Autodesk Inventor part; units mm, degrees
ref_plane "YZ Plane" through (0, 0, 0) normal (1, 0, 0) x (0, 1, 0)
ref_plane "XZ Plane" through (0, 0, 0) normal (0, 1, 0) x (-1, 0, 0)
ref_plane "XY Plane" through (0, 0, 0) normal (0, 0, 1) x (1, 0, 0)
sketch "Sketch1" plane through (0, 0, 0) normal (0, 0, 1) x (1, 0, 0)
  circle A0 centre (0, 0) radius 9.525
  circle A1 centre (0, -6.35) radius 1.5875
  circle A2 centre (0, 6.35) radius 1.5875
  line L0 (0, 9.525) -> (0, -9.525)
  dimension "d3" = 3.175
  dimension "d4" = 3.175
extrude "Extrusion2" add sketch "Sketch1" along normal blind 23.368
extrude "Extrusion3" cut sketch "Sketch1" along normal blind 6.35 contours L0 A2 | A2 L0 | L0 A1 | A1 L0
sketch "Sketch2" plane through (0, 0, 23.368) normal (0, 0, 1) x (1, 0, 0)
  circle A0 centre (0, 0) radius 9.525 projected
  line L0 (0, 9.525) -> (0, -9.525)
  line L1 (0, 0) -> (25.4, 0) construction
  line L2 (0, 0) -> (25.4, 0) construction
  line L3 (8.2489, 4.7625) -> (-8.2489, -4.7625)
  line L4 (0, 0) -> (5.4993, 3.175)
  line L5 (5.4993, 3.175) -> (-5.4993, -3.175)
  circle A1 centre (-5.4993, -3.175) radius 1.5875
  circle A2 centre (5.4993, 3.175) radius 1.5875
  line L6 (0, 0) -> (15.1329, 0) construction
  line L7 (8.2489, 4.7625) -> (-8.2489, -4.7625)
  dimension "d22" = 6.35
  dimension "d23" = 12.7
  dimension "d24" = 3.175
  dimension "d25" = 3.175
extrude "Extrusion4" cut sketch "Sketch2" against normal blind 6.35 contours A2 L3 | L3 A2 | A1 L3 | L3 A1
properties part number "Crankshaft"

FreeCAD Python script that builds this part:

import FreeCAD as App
import Part
import Sketcher
from FreeCAD import Vector
Q = App.Units.Quantity

doc = App.newDocument("Part")
body = doc.addObject("PartDesign::Body", "Body")

# Sketch on XY plane
sketch1 = body.newObject("Sketcher::SketchObject", "Sketch")
sketch1.AttachmentSupport = (doc.getObject("XY_Plane"), [""])
sketch1.MapMode = "FlatFace"
sketch1.addGeometry(Part.Circle(Vector(0, 0, 0), Vector(0, 0, 1), 10), False)
sketch1.addConstraint(Sketcher.Constraint("Coincident", 0, 3, -1, 1))
sketch1.addConstraint(Sketcher.Constraint("Diameter", 0, Q("0.75 in")))
pad1 = body.newObject("PartDesign::Pad", "Pad")
pad1.Profile = sketch1
pad1.Length = Q("0.92 in")

# Sketch on XY plane
sketch2 = body.newObject("Sketcher::SketchObject", "Sketch001")
sketch2.AttachmentSupport = (doc.getObject("XY_Plane"), [""])
sketch2.MapMode = "FlatFace"
sketch2.addGeometry(Part.Circle(Vector(0, 6.3, 0), Vector(0, 0, 1), 1.6), False)
sketch2.addGeometry(Part.Circle(Vector(0, -6.3, 0), Vector(0, 0, 1), 1.6), False)
sketch2.addConstraint(Sketcher.Constraint("Equal", 0, 1))
sketch2.addConstraint(Sketcher.Constraint("Symmetric", 0, 3, 1, 3, -1, 1))
sketch2.addConstraint(Sketcher.Constraint("PointOnObject", 0, 3, -2))
sketch2.addConstraint(Sketcher.Constraint("Diameter", 0, Q("0.125 in")))
sketch2.addConstraint(Sketcher.Constraint("DistanceY", 1, 3, 0, 3, Q("0.5 in")))
pocket1 = body.newObject("PartDesign::Pocket", "Pocket")
pocket1.Profile = sketch2
pocket1.Length = Q("0.25 in")
pocket1.Reversed = True

# Sketch on XY plane
sketch3 = body.newObject("Sketcher::SketchObject", "Sketch002")
sketch3.AttachmentSupport = (doc.getObject("XY_Plane"), [""])
sketch3.MapMode = "FlatFace"
sketch3.AttachmentOffset = App.Placement(Vector(0, 0, 0.92 * 25.4), App.Rotation())
sketch3.addGeometry(Part.Circle(Vector(5.5, 3.2, 0), Vector(0, 0, 1), 1.6), False)
sketch3.addGeometry(Part.Circle(Vector(-5.5, -3.2, 0), Vector(0, 0, 1), 1.6), False)
sketch3.addConstraint(Sketcher.Constraint("Equal", 0, 1))
sketch3.addConstraint(Sketcher.Constraint("Symmetric", 0, 3, 1, 3, -1, 1))
sketch3.addConstraint(Sketcher.Constraint("Diameter", 0, Q("0.125 in")))
sketch3.addConstraint(Sketcher.Constraint("DistanceY", 1, 3, 0, 3, Q("0.25 in")))
sketch3.addConstraint(Sketcher.Constraint("DistanceX", -1, 1, 0, 3, Q("0.2165 in")))
pocket2 = body.newObject("PartDesign::Pocket", "Pocket001")
pocket2.Profile = sketch3
pocket2.Length = Q("0.25 in")

doc.recompute()
